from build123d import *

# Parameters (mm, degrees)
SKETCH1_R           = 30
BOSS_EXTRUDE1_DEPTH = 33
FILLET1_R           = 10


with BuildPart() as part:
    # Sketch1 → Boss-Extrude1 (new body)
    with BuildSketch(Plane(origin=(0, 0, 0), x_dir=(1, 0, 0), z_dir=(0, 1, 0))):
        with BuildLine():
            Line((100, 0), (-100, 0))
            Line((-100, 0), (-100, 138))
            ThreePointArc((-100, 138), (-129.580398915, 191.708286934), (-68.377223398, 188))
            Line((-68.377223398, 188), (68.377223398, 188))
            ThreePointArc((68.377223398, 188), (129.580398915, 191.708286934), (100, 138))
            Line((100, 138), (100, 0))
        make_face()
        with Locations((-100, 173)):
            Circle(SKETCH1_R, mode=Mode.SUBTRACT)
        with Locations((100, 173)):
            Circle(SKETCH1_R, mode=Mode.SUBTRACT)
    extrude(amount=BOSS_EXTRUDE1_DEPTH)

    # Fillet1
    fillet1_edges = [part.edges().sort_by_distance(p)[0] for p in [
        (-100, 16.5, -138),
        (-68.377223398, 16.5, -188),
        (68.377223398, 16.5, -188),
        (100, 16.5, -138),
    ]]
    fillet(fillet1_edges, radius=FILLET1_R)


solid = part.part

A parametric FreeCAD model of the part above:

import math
import FreeCAD as App
import Part
import Sketcher
Q = App.Units.Quantity


def edges_at(feature, points):
    """Names of the edges that pass closest to the given points."""
    edges = feature.Shape.Edges
    near = lambda p: min(range(len(edges)), key=lambda i: edges[i].distToShape(Part.Vertex(*p))[0])
    return sorted({f"Edge{near(p) + 1}" for p in points})

doc = App.newDocument("Part")
body = doc.addObject("PartDesign::Body", "Body")

# Sketch on XZ plane
sketch1 = body.newObject("Sketcher::SketchObject", "Sketch")
sketch1.AttachmentSupport = (doc.getObject("XZ_Plane"), [""])
sketch1.MapMode = "FlatFace"
sketch1.addGeometry([
    Part.LineSegment(App.Vector(-100, 0, 0), App.Vector(100, 0, 0)),  # 0
    Part.LineSegment(App.Vector(100, 0, 0), App.Vector(100, -138, 0)),  # 1
    Part.ArcOfCircle(Part.Circle(App.Vector(100, -173, 0), App.Vector(0, 0, 1), 35), math.radians(-155), math.radians(90)),  # 2
    Part.LineSegment(App.Vector(68, -188, 0), App.Vector(-68, -188, 0)),  # 3
    Part.ArcOfCircle(Part.Circle(App.Vector(-100, -173, 0), App.Vector(0, 0, 1), 35), math.radians(90), math.radians(335)),  # 4
    Part.LineSegment(App.Vector(-100, -138, 0), App.Vector(-100, 0, 0)),  # 5
    Part.Circle(App.Vector(100, -173, 0), App.Vector(0, 0, 1), 30),  # 6
    Part.Circle(App.Vector(-100, -173, 0), App.Vector(0, 0, 1), 30),  # 7
], False)
sketch1.addConstraint([
    Sketcher.Constraint("Coincident", 0, 2, 1, 1),
    Sketcher.Constraint("Coincident", 1, 2, 2, 2),
    Sketcher.Constraint("Coincident", 2, 1, 3, 1),
    Sketcher.Constraint("Coincident", 3, 2, 4, 2),
    Sketcher.Constraint("Coincident", 4, 1, 5, 1),
    Sketcher.Constraint("Coincident", 5, 2, 0, 1),
    Sketcher.Constraint("Horizontal", 0),
    Sketcher.Constraint("Vertical", 1),
    Sketcher.Constraint("Horizontal", 3),
    Sketcher.Constraint("Vertical", 5),
    Sketcher.Constraint("Coincident", 6, 3, 2, 3),
    Sketcher.Constraint("Coincident", 7, 3, 4, 3),
    Sketcher.Constraint("Equal", 2, 4),
    Sketcher.Constraint("Equal", 6, 7),
    Sketcher.Constraint("Symmetric", 0, 2, 5, 2, -1, 1),
    Sketcher.Constraint("Symmetric", 2, 3, 4, 3, -2),
    Sketcher.Constraint("Vertical", 6, 3, 0, 2),
    Sketcher.Constraint("Diameter", 6, Q("60 mm")),
    Sketcher.Constraint("Radius", 2, Q("35 mm")),
    Sketcher.Constraint("DistanceX", 0, 1, 0, 2, Q("200 mm")),
    Sketcher.Constraint("DistanceY", 1, 2, 1, 1, Q("138 mm")),
    Sketcher.Constraint("DistanceY", 2, 1, -1, 1, Q("188 mm")),
])
pad1 = body.newObject("PartDesign::Pad", "Pad")
pad1.Profile = sketch1
pad1.Length = 33
pad1.Reversed = True
doc.recompute()

fillet = body.newObject("PartDesign::Fillet", "Fillet")
fillet.Base = (pad1, edges_at(pad1, [
    (-100, 16.5, -138),
    (-68.377, 16.5, -188),
    (68.377, 16.5, -188),
    (100, 16.5, -138),
]))
fillet.Radius = 10

doc.recompute()
